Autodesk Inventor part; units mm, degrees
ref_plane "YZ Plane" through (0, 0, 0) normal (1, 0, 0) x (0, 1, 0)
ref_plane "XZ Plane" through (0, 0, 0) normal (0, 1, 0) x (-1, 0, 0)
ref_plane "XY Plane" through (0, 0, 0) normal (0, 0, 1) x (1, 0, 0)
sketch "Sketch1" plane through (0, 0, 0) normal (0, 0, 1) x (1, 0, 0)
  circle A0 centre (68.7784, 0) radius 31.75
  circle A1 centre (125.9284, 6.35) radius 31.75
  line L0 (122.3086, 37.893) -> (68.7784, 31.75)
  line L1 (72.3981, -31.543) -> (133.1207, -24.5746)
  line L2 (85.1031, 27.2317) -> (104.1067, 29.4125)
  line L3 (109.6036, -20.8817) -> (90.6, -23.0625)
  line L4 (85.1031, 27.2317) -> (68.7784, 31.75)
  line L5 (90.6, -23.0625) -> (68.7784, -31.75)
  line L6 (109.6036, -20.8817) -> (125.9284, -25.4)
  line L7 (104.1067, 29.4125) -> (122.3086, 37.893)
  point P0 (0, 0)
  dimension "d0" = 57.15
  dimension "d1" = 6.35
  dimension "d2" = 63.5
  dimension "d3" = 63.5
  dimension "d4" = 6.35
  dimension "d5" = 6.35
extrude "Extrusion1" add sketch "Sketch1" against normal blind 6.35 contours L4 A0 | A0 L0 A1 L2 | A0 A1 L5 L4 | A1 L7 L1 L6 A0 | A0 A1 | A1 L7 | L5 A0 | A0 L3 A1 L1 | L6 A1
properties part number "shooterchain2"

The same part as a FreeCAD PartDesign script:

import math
import FreeCAD as App
import Part
import Sketcher
Q = App.Units.Quantity

doc = App.newDocument("Part")
body = doc.addObject("PartDesign::Body", "Body")

sketch1 = doc.addObject("Sketcher::SketchObject", "Sketch")
body.addObject(sketch1)
sketch1.AttachmentSupport = (doc.XY_Plane, [""])
sketch1.MapMode = "FlatFace"
sketch1.addGeometry([
    Part.ArcOfCircle(Part.Circle(App.Vector(69, 0, 0), App.Vector(0, 0, 1), 32), math.radians(90), math.radians(277)),
    Part.LineSegment(App.Vector(72, -32, 0), App.Vector(133, -25, 0)),
    Part.ArcOfCircle(Part.Circle(App.Vector(126, 6, 0), App.Vector(0, 0, 1), 32), math.radians(-77), math.radians(97)),
    Part.LineSegment(App.Vector(122, 38, 0), App.Vector(69, 32, 0)),
    Part.ArcOfCircle(Part.Circle(App.Vector(69, 0, 0), App.Vector(0, 0, 1), 32), math.radians(31), math.radians(59)),
    Part.LineSegment(App.Vector(85, 27, 0), App.Vector(104, 29, 0)),
    Part.ArcOfCircle(Part.Circle(App.Vector(126, 6, 0), App.Vector(0, 0, 1), 32), math.radians(133), math.radians(161)),
    Part.ArcOfCircle(Part.Circle(App.Vector(69, 0, 0), App.Vector(0, 0, 1), 32), math.radians(-47), math.radians(-19)),
    Part.ArcOfCircle(Part.Circle(App.Vector(126, 6, 0), App.Vector(0, 0, 1), 32), math.radians(-149), math.radians(-121)),
    Part.LineSegment(App.Vector(110, -21, 0), App.Vector(91, -23, 0)),
], False)
sketch1.addConstraint([
    Sketcher.Constraint("Tangent", 0, 2, 1, 1),
    Sketcher.Constraint("Coincident", 1, 2, 2, 1),
    Sketcher.Constraint("Tangent", 2, 2, 3, 1),
    Sketcher.Constraint("Coincident", 3, 2, 0, 1),
    Sketcher.Constraint("Coincident", 4, 2, 5, 1),
    Sketcher.Constraint("Coincident", 5, 2, 6, 1),
    Sketcher.Constraint("Coincident", 6, 2, 4, 1),
    Sketcher.Constraint("Coincident", 7, 2, 8, 1),
    Sketcher.Constraint("Coincident", 8, 2, 9, 1),
    Sketcher.Constraint("Coincident", 9, 2, 7, 1),
    Sketcher.Constraint("Coincident", 4, 3, 0, 3),
    Sketcher.Constraint("Coincident", 6, 3, 2, 3),
    Sketcher.Constraint("Coincident", 7, 3, 0, 3),
    Sketcher.Constraint("Coincident", 8, 3, 2, 3),
    Sketcher.Constraint("Equal", 0, 2),
    Sketcher.Constraint("Equal", 2, 4),
    Sketcher.Constraint("Equal", 4, 6),
    Sketcher.Constraint("Equal", 6, 7),
    Sketcher.Constraint("Equal", 7, 8),
    Sketcher.Constraint("PointOnObject", 0, 3, -1),
    Sketcher.Constraint("Parallel", 1, 3),
    Sketcher.Constraint("Parallel", 3, 5),
    Sketcher.Constraint("Parallel", 5, 9),
    Sketcher.Constraint("Vertical", 7, 3, 3, 2),
    Sketcher.Constraint("Equal", 5, 9),
    Sketcher.Constraint("Radius", 0, Q("1.25 in")),
    Sketcher.Constraint("DistanceY", -1, 1, 2, 3, Q("0.25 in")),
    Sketcher.Constraint("DistanceX", 0, 3, 2, 3, Q("2.25 in")),
    Sketcher.Constraint("DistanceX", -1, 1, 0, 3, Q("2.7078 in")),
    Sketcher.Constraint("DistanceX", -1, 1, 5, 2, Q("4.0987 in")),
])
pad1 = doc.addObject("PartDesign::Pad", "Pad")
body.addObject(pad1)
pad1.Profile = sketch1
pad1.Length = Q("0.25 in")
pad1.Reversed = True

doc.recompute()
